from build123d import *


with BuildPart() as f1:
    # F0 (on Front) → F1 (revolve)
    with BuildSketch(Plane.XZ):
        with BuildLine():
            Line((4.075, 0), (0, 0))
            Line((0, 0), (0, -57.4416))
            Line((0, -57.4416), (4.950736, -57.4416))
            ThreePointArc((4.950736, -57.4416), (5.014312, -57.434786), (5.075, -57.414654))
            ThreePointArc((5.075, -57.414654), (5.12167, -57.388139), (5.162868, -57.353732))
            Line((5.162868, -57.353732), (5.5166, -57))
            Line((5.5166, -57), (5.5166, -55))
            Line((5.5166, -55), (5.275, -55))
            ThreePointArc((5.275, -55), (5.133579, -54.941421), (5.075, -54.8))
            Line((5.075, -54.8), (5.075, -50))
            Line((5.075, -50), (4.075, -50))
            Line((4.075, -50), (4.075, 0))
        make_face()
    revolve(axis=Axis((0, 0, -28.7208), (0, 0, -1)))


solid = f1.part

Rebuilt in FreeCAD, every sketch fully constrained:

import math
import FreeCAD as App
import Part
import Sketcher
Q = App.Units.Quantity

doc = App.newDocument("Part")
body = doc.addObject("PartDesign::Body", "Body")

# Sketch on XZ plane
sketch1 = body.newObject("Sketcher::SketchObject", "Sketch")
sketch1.AttachmentSupport = (doc.getObject("XZ_Plane"), [""])
sketch1.MapMode = "FlatFace"
sketch1.addGeometry([
    Part.LineSegment(App.Vector(4.08, 0, 0), App.Vector(0, 0, 0)),  # 0
    Part.LineSegment(App.Vector(0, 0, 0), App.Vector(0, -57.44, 0)),  # 1
    Part.LineSegment(App.Vector(0, -57.44, 0), App.Vector(4.95, -57.44, 0)),  # 2
    Part.ArcOfCircle(Part.Circle(App.Vector(4.95, -57.14, 0), App.Vector(0, 0, 1), 0.3), math.radians(-90), math.radians(-66)),  # 3
    Part.ArcOfCircle(Part.Circle(App.Vector(4.95, -57.14, 0), App.Vector(0, 0, 1), 0.3), math.radians(-66), math.radians(-45)),  # 4
    Part.LineSegment(App.Vector(5.16, -57.35, 0), App.Vector(5.52, -57, 0)),  # 5
    Part.LineSegment(App.Vector(5.52, -57, 0), App.Vector(5.52, -55, 0)),  # 6
    Part.LineSegment(App.Vector(5.52, -55, 0), App.Vector(5.28, -55, 0)),  # 7
    Part.ArcOfCircle(Part.Circle(App.Vector(5.28, -54.8, 0), App.Vector(0, 0, 1), 0.2), math.radians(-180), math.radians(-90)),  # 8
    Part.LineSegment(App.Vector(5.08, -54.8, 0), App.Vector(5.08, -50, 0)),  # 9
    Part.LineSegment(App.Vector(5.08, -50, 0), App.Vector(4.08, -50, 0)),  # 10
    Part.LineSegment(App.Vector(4.08, -50, 0), App.Vector(4.08, 0, 0)),  # 11
], False)
sketch1.addConstraint([
    Sketcher.Constraint("Coincident", 0, 2, 1, 1),
    Sketcher.Constraint("Coincident", 1, 2, 2, 1),
    Sketcher.Constraint("Coincident", 2, 2, 3, 1),
    Sketcher.Constraint("Coincident", 3, 2, 4, 1),
    Sketcher.Constraint("Coincident", 4, 2, 5, 1),
    Sketcher.Constraint("Coincident", 5, 2, 6, 1),
    Sketcher.Constraint("Coincident", 6, 2, 7, 1),
    Sketcher.Constraint("Coincident", 7, 2, 8, 2),
    Sketcher.Constraint("Coincident", 8, 1, 9, 1),
    Sketcher.Constraint("Coincident", 9, 2, 10, 1),
    Sketcher.Constraint("Coincident", 10, 2, 11, 1),
    Sketcher.Constraint("Coincident", 11, 2, 0, 1),
    Sketcher.Constraint("Horizontal", 0),
    Sketcher.Constraint("Vertical", 1),
    Sketcher.Constraint("Horizontal", 2),
    Sketcher.Constraint("Vertical", 6),
    Sketcher.Constraint("Horizontal", 7),
    Sketcher.Constraint("Vertical", 9),
    Sketcher.Constraint("Horizontal", 10),
    Sketcher.Constraint("Vertical", 11),
    Sketcher.Constraint("Coincident", 0, 2, -1, 1),
    Sketcher.Constraint("Coincident", 4, 3, 3, 3),
    Sketcher.Constraint("Vertical", 3, 3, 2, 2),
    Sketcher.Constraint("Vertical", 8, 3, 7, 2),
    Sketcher.Constraint("Vertical", 3, 2, 8, 1),
    Sketcher.Constraint("Radius", 8, Q("0.200001 mm")),
    Sketcher.Constraint("DistanceX", 10, 2, 10, 1, Q("1 mm")),
    Sketcher.Constraint("DistanceY", 6, 1, 6, 2, Q("2 mm")),
    Sketcher.Constraint("DistanceY", 11, 1, 11, 2, Q("50 mm")),
    Sketcher.Constraint("Angle", 5, Q("45 deg")),
    Sketcher.Constraint("DistanceY", 9, 1, 9, 2, Q("4.8 mm")),
    Sketcher.Constraint("DistanceY", 5, 2, -1, 1, Q("57 mm")),
    Sketcher.Constraint("DistanceX", 0, 2, 0, 1, Q("4.075 mm")),
    Sketcher.Constraint("Radius", 4, Q("0.300009 mm")),
    Sketcher.Constraint("DistanceX", 7, 2, 7, 1, Q("0.2416 mm")),
    Sketcher.Constraint("DistanceY", 1, 2, 1, 1, Q("57.4416 mm")),
    Sketcher.Constraint("DistanceY", 4, 2, -1, 1, Q("57.353732 mm")),
])
revolution = body.newObject("PartDesign::Revolution", "Revolution")
revolution.Profile = sketch1
revolution.ReferenceAxis = (sketch1, ["V_Axis"])
revolution.Angle = 360

doc.recompute()
